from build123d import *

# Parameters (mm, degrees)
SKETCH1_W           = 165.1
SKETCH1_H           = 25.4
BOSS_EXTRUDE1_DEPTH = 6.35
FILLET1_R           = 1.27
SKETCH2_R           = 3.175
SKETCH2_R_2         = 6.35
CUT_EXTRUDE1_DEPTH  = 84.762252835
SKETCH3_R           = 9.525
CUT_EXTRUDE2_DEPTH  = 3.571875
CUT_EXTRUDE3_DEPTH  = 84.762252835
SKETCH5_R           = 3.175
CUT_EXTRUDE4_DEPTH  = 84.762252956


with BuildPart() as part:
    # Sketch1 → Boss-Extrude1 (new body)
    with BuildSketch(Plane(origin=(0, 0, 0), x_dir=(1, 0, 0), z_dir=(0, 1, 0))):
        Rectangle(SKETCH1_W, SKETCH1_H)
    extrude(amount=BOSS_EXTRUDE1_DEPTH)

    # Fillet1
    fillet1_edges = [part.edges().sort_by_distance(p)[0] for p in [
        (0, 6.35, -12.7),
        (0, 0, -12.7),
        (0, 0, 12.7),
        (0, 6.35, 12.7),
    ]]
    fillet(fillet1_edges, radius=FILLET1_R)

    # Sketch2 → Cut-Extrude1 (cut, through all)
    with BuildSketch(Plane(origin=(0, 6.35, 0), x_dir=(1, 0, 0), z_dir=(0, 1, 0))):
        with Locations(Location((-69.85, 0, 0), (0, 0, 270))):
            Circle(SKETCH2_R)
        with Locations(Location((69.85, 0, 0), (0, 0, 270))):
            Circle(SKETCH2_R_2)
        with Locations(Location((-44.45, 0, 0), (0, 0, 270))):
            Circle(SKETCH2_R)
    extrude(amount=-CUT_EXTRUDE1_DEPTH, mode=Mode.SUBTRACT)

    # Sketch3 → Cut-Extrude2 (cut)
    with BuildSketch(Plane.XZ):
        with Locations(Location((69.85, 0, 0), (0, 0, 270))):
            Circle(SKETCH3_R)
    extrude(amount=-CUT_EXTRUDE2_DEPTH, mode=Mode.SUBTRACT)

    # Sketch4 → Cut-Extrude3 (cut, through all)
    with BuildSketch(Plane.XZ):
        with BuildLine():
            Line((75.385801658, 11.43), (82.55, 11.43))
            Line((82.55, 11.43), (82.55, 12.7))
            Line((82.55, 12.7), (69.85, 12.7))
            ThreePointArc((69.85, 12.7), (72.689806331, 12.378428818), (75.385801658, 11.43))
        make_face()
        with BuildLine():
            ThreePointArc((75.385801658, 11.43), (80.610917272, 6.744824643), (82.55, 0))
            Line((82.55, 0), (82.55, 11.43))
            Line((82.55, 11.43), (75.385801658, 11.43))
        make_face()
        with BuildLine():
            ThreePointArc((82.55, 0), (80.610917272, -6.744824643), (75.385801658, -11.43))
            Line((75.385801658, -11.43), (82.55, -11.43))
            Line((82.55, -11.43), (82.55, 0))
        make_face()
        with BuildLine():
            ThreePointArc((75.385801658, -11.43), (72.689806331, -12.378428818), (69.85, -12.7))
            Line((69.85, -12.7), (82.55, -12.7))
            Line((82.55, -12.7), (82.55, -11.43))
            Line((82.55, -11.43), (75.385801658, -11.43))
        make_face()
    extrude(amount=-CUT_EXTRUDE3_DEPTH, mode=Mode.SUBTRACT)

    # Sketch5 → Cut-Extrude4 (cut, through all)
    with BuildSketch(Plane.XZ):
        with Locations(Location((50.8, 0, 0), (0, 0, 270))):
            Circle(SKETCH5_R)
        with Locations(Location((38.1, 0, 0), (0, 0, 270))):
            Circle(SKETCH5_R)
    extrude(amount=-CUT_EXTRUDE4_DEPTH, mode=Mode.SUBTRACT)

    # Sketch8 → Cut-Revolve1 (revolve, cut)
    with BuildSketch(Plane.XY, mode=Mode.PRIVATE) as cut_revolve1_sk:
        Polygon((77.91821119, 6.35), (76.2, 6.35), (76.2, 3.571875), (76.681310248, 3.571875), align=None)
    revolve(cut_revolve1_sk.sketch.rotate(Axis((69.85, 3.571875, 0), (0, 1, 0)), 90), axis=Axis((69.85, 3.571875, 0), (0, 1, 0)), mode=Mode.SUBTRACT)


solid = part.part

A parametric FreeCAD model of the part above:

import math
import FreeCAD as App
import Part
import Sketcher
from FreeCAD import Vector
Q = App.Units.Quantity


def edges_at(feature, points):
    """Names of the edges that pass closest to the given points."""
    edges = feature.Shape.Edges
    near = lambda p: min(range(len(edges)), key=lambda i: edges[i].distToShape(Part.Vertex(*p))[0])
    return sorted({f"Edge{near(p) + 1}" for p in points})

doc = App.newDocument("Part")
body = doc.addObject("PartDesign::Body", "Body")

sketch1 = doc.addObject("Sketcher::SketchObject", "Sketch")
body.addObject(sketch1)
sketch1.AttachmentSupport = (doc.XZ_Plane, [""])
sketch1.MapMode = "FlatFace"
sketch1.addGeometry([
    Part.LineSegment(Vector(-83, -13, 0), Vector(-83, 13, 0)),
    Part.LineSegment(Vector(-83, 13, 0), Vector(83, 13, 0)),
    Part.LineSegment(Vector(83, 13, 0), Vector(83, -13, 0)),
    Part.LineSegment(Vector(83, -13, 0), Vector(-83, -13, 0)),
], False)
sketch1.addConstraint([
    Sketcher.Constraint("Coincident", 0, 2, 1, 1),
    Sketcher.Constraint("Coincident", 1, 2, 2, 1),
    Sketcher.Constraint("Coincident", 2, 2, 3, 1),
    Sketcher.Constraint("Coincident", 3, 2, 0, 1),
    Sketcher.Constraint("Vertical", 0),
    Sketcher.Constraint("Horizontal", 1),
    Sketcher.Constraint("Vertical", 2),
    Sketcher.Constraint("Horizontal", 3),
    Sketcher.Constraint("Symmetric", 0, 2, 2, 2, -1, 1),
    Sketcher.Constraint("DistanceY", 0, 1, 0, 2, Q("1 in")),
    Sketcher.Constraint("DistanceX", 1, 1, 1, 2, Q("6.5 in")),
])
pad1 = doc.addObject("PartDesign::Pad", "Pad")
body.addObject(pad1)
pad1.Profile = sketch1
pad1.Length = Q("0.25 in")
pad1.Reversed = True
doc.recompute()

fillet = doc.addObject("PartDesign::Fillet", "Fillet")
body.addObject(fillet)
fillet.Base = (pad1, edges_at(pad1, [
    (0, 6.35, -12.7),
    (0, 0, -12.7),
    (0, 0, 12.7),
    (0, 6.35, 12.7),
]))
fillet.Radius = Q("0.05 in")

sketch2 = doc.addObject("Sketcher::SketchObject", "Sketch001")
body.addObject(sketch2)
sketch2.AttachmentSupport = (doc.XZ_Plane, [""])
sketch2.MapMode = "FlatFace"
sketch2.AttachmentOffset = App.Placement(Vector(0, 0, -0.25 * 25.4), App.Rotation())
sketch2.addGeometry([
    Part.Circle(Vector(-69.8, 0, 0), Vector(0, 0, 1), 3.2),
    Part.Circle(Vector(69.8, 0, 0), Vector(0, 0, 1), 6.3),
    Part.Circle(Vector(-44.5, 0, 0), Vector(0, 0, 1), 3.2),
], False)
sketch2.addConstraint([
    Sketcher.Constraint("Equal", 0, 2),
    Sketcher.Constraint("Symmetric", 0, 3, 1, 3, -1, 1),
    Sketcher.Constraint("PointOnObject", 0, 3, -1),
    Sketcher.Constraint("PointOnObject", 2, 3, -1),
    Sketcher.Constraint("Diameter", 1, Q("0.5 in")),
    Sketcher.Constraint("Diameter", 0, Q("0.25 in")),
    Sketcher.Constraint("DistanceX", 0, 3, 2, 3, Q("1 in")),
    Sketcher.Constraint("DistanceX", 0, 3, 1, 3, Q("5.5 in")),
])
pocket1 = doc.addObject("PartDesign::Pocket", "Pocket")
body.addObject(pocket1)
pocket1.Profile = sketch2
pocket1.Type = "ThroughAll"
pocket1.Reversed = True

sketch3 = doc.addObject("Sketcher::SketchObject", "Sketch002")
body.addObject(sketch3)
sketch3.AttachmentSupport = (doc.XZ_Plane, [""])
sketch3.MapMode = "FlatFace"
sketch3.addGeometry(Part.Circle(Vector(70, 0, 0), Vector(0, 0, 1), 10), False)
sketch3.addConstraint([
    Sketcher.Constraint("PointOnObject", 0, 3, -1),
    Sketcher.Constraint("Diameter", 0, Q("0.75 in")),
    Sketcher.Constraint("DistanceX", -1, 1, 0, 3, Q("2.75 in")),
])
pocket2 = doc.addObject("PartDesign::Pocket", "Pocket001")
body.addObject(pocket2)
pocket2.Profile = sketch3
pocket2.Length = Q("0.140625 in")

sketch4 = doc.addObject("Sketcher::SketchObject", "Sketch003")
body.addObject(sketch4)
sketch4.AttachmentSupport = (doc.XZ_Plane, [""])
sketch4.MapMode = "FlatFace"
sketch4.addGeometry([
    Part.LineSegment(Vector(83, 13, 0), Vector(70, 13, 0)),
    Part.ArcOfCircle(Part.Circle(Vector(70, 0, 0), Vector(0, 0, 1), 13), math.radians(64), math.radians(90)),
    Part.ArcOfCircle(Part.Circle(Vector(70, 0, 0), Vector(0, 0, 1), 13), math.radians(0), math.radians(64)),
    Part.LineSegment(Vector(83, 0, 0), Vector(83, 13, 0)),
    Part.ArcOfCircle(Part.Circle(Vector(70, 0, 0), Vector(0, 0, 1), 13), math.radians(-64), math.radians(0)),
    Part.ArcOfCircle(Part.Circle(Vector(70, 0, 0), Vector(0, 0, 1), 13), math.radians(-90), math.radians(-64)),
    Part.LineSegment(Vector(70, -13, 0), Vector(83, -13, 0)),
    Part.LineSegment(Vector(83, -13, 0), Vector(83, 0, 0)),
], False)
sketch4.addConstraint([
    Sketcher.Constraint("Tangent", 0, 2, 1, 2),
    Sketcher.Constraint("Tangent", 1, 1, 2, 2),
    Sketcher.Constraint("Tangent", 2, 1, 3, 1),
    Sketcher.Constraint("Coincident", 3, 2, 0, 1),
    Sketcher.Constraint("Tangent", 4, 1, 5, 2),
    Sketcher.Constraint("Tangent", 5, 1, 6, 1),
    Sketcher.Constraint("Coincident", 6, 2, 7, 1),
    Sketcher.Constraint("Tangent", 7, 2, 4, 2),
    Sketcher.Constraint("Horizontal", 0),
    Sketcher.Constraint("Vertical", 3),
    Sketcher.Constraint("Horizontal", 6),
    Sketcher.Constraint("Vertical", 7),
    Sketcher.Constraint("Coincident", 4, 3, 1, 3),
    Sketcher.Constraint("Coincident", 7, 2, 2, 1),
    Sketcher.Constraint("Equal", 4, 5),
    Sketcher.Constraint("Symmetric", 1, 1, 4, 1, -1),
    Sketcher.Constraint("Radius", 1, Q("0.5 in")),
    Sketcher.Constraint("DistanceX", -1, 1, 1, 3, Q("2.75 in")),
    Sketcher.Constraint("DistanceY", -1, 1, 1, 1, Q("0.45 in")),
])
pocket3 = doc.addObject("PartDesign::Pocket", "Pocket002")
body.addObject(pocket3)
pocket3.Profile = sketch4
pocket3.Type = "ThroughAll"

sketch5 = doc.addObject("Sketcher::SketchObject", "Sketch004")
body.addObject(sketch5)
sketch5.AttachmentSupport = (doc.XZ_Plane, [""])
sketch5.MapMode = "FlatFace"
sketch5.addGeometry([
    Part.Circle(Vector(50.8, 0, 0), Vector(0, 0, 1), 3.2),
    Part.Circle(Vector(38.1, 0, 0), Vector(0, 0, 1), 3.2),
], False)
sketch5.addConstraint([
    Sketcher.Constraint("Equal", 0, 1),
    Sketcher.Constraint("PointOnObject", 0, 3, -1),
    Sketcher.Constraint("PointOnObject", 1, 3, -1),
    Sketcher.Constraint("Diameter", 0, Q("0.25 in")),
    Sketcher.Constraint("DistanceX", -1, 1, 0, 3, Q("2 in")),
    Sketcher.Constraint("DistanceX", -1, 1, 1, 3, Q("1.5 in")),
])
pocket4 = doc.addObject("PartDesign::Pocket", "Pocket003")
body.addObject(pocket4)
pocket4.Profile = sketch5
pocket4.Type = "ThroughAll"

sketch6 = doc.addObject("Sketcher::SketchObject", "Sketch005")
body.addObject(sketch6)
sketch6.AttachmentSupport = (doc.XY_Plane, [""])
sketch6.MapMode = "FlatFace"
sketch6.addGeometry([
    Part.LineSegment(Vector(77.92, 6.35, 0), Vector(76.2, 6.35, 0)),
    Part.LineSegment(Vector(76.2, 6.35, 0), Vector(76.2, 3.57, 0)),
    Part.LineSegment(Vector(76.2, 3.57, 0), Vector(76.68, 3.57, 0)),
    Part.LineSegment(Vector(76.68, 3.57, 0), Vector(77.92, 6.35, 0)),
], False)
sketch6.addGeometry(Part.LineSegment(Vector(69.85, 3.57, 0), Vector(69.85, 6.35, 0)), True)
sketch6.addConstraint([
    Sketcher.Constraint("Coincident", 0, 2, 1, 1),
    Sketcher.Constraint("Coincident", 1, 2, 2, 1),
    Sketcher.Constraint("Coincident", 2, 2, 3, 1),
    Sketcher.Constraint("Coincident", 3, 2, 0, 1),
    Sketcher.Constraint("Horizontal", 0),
    Sketcher.Constraint("Vertical", 1),
    Sketcher.Constraint("Horizontal", 2),
    Sketcher.Constraint("Vertical", 4),
    Sketcher.Constraint("Horizontal", 2, 2, 4, 1),
    Sketcher.Constraint("Horizontal", 3, 2, 4, 2),
    Sketcher.Constraint("DistanceX", -1, 1, 0, 2, Q("3 in")),
    Sketcher.Constraint("Angle", 3, Q("66 deg")),
    Sketcher.Constraint("DistanceY", 1, 2, 1, 1, Q("0.109375 in")),
    Sketcher.Constraint("DistanceY", -1, 1, 0, 2, Q("0.25 in")),
    Sketcher.Constraint("DistanceX", -1, 1, 4, 1, Q("2.75 in")),
    Sketcher.Constraint("DistanceX", 0, 2, 0, 1, 1.718211),
])
groove = doc.addObject("PartDesign::Groove", "Groove")
body.addObject(groove)
groove.Profile = sketch6
groove.ReferenceAxis = (sketch6, ["Axis0"])
groove.Angle = 360

doc.recompute()
